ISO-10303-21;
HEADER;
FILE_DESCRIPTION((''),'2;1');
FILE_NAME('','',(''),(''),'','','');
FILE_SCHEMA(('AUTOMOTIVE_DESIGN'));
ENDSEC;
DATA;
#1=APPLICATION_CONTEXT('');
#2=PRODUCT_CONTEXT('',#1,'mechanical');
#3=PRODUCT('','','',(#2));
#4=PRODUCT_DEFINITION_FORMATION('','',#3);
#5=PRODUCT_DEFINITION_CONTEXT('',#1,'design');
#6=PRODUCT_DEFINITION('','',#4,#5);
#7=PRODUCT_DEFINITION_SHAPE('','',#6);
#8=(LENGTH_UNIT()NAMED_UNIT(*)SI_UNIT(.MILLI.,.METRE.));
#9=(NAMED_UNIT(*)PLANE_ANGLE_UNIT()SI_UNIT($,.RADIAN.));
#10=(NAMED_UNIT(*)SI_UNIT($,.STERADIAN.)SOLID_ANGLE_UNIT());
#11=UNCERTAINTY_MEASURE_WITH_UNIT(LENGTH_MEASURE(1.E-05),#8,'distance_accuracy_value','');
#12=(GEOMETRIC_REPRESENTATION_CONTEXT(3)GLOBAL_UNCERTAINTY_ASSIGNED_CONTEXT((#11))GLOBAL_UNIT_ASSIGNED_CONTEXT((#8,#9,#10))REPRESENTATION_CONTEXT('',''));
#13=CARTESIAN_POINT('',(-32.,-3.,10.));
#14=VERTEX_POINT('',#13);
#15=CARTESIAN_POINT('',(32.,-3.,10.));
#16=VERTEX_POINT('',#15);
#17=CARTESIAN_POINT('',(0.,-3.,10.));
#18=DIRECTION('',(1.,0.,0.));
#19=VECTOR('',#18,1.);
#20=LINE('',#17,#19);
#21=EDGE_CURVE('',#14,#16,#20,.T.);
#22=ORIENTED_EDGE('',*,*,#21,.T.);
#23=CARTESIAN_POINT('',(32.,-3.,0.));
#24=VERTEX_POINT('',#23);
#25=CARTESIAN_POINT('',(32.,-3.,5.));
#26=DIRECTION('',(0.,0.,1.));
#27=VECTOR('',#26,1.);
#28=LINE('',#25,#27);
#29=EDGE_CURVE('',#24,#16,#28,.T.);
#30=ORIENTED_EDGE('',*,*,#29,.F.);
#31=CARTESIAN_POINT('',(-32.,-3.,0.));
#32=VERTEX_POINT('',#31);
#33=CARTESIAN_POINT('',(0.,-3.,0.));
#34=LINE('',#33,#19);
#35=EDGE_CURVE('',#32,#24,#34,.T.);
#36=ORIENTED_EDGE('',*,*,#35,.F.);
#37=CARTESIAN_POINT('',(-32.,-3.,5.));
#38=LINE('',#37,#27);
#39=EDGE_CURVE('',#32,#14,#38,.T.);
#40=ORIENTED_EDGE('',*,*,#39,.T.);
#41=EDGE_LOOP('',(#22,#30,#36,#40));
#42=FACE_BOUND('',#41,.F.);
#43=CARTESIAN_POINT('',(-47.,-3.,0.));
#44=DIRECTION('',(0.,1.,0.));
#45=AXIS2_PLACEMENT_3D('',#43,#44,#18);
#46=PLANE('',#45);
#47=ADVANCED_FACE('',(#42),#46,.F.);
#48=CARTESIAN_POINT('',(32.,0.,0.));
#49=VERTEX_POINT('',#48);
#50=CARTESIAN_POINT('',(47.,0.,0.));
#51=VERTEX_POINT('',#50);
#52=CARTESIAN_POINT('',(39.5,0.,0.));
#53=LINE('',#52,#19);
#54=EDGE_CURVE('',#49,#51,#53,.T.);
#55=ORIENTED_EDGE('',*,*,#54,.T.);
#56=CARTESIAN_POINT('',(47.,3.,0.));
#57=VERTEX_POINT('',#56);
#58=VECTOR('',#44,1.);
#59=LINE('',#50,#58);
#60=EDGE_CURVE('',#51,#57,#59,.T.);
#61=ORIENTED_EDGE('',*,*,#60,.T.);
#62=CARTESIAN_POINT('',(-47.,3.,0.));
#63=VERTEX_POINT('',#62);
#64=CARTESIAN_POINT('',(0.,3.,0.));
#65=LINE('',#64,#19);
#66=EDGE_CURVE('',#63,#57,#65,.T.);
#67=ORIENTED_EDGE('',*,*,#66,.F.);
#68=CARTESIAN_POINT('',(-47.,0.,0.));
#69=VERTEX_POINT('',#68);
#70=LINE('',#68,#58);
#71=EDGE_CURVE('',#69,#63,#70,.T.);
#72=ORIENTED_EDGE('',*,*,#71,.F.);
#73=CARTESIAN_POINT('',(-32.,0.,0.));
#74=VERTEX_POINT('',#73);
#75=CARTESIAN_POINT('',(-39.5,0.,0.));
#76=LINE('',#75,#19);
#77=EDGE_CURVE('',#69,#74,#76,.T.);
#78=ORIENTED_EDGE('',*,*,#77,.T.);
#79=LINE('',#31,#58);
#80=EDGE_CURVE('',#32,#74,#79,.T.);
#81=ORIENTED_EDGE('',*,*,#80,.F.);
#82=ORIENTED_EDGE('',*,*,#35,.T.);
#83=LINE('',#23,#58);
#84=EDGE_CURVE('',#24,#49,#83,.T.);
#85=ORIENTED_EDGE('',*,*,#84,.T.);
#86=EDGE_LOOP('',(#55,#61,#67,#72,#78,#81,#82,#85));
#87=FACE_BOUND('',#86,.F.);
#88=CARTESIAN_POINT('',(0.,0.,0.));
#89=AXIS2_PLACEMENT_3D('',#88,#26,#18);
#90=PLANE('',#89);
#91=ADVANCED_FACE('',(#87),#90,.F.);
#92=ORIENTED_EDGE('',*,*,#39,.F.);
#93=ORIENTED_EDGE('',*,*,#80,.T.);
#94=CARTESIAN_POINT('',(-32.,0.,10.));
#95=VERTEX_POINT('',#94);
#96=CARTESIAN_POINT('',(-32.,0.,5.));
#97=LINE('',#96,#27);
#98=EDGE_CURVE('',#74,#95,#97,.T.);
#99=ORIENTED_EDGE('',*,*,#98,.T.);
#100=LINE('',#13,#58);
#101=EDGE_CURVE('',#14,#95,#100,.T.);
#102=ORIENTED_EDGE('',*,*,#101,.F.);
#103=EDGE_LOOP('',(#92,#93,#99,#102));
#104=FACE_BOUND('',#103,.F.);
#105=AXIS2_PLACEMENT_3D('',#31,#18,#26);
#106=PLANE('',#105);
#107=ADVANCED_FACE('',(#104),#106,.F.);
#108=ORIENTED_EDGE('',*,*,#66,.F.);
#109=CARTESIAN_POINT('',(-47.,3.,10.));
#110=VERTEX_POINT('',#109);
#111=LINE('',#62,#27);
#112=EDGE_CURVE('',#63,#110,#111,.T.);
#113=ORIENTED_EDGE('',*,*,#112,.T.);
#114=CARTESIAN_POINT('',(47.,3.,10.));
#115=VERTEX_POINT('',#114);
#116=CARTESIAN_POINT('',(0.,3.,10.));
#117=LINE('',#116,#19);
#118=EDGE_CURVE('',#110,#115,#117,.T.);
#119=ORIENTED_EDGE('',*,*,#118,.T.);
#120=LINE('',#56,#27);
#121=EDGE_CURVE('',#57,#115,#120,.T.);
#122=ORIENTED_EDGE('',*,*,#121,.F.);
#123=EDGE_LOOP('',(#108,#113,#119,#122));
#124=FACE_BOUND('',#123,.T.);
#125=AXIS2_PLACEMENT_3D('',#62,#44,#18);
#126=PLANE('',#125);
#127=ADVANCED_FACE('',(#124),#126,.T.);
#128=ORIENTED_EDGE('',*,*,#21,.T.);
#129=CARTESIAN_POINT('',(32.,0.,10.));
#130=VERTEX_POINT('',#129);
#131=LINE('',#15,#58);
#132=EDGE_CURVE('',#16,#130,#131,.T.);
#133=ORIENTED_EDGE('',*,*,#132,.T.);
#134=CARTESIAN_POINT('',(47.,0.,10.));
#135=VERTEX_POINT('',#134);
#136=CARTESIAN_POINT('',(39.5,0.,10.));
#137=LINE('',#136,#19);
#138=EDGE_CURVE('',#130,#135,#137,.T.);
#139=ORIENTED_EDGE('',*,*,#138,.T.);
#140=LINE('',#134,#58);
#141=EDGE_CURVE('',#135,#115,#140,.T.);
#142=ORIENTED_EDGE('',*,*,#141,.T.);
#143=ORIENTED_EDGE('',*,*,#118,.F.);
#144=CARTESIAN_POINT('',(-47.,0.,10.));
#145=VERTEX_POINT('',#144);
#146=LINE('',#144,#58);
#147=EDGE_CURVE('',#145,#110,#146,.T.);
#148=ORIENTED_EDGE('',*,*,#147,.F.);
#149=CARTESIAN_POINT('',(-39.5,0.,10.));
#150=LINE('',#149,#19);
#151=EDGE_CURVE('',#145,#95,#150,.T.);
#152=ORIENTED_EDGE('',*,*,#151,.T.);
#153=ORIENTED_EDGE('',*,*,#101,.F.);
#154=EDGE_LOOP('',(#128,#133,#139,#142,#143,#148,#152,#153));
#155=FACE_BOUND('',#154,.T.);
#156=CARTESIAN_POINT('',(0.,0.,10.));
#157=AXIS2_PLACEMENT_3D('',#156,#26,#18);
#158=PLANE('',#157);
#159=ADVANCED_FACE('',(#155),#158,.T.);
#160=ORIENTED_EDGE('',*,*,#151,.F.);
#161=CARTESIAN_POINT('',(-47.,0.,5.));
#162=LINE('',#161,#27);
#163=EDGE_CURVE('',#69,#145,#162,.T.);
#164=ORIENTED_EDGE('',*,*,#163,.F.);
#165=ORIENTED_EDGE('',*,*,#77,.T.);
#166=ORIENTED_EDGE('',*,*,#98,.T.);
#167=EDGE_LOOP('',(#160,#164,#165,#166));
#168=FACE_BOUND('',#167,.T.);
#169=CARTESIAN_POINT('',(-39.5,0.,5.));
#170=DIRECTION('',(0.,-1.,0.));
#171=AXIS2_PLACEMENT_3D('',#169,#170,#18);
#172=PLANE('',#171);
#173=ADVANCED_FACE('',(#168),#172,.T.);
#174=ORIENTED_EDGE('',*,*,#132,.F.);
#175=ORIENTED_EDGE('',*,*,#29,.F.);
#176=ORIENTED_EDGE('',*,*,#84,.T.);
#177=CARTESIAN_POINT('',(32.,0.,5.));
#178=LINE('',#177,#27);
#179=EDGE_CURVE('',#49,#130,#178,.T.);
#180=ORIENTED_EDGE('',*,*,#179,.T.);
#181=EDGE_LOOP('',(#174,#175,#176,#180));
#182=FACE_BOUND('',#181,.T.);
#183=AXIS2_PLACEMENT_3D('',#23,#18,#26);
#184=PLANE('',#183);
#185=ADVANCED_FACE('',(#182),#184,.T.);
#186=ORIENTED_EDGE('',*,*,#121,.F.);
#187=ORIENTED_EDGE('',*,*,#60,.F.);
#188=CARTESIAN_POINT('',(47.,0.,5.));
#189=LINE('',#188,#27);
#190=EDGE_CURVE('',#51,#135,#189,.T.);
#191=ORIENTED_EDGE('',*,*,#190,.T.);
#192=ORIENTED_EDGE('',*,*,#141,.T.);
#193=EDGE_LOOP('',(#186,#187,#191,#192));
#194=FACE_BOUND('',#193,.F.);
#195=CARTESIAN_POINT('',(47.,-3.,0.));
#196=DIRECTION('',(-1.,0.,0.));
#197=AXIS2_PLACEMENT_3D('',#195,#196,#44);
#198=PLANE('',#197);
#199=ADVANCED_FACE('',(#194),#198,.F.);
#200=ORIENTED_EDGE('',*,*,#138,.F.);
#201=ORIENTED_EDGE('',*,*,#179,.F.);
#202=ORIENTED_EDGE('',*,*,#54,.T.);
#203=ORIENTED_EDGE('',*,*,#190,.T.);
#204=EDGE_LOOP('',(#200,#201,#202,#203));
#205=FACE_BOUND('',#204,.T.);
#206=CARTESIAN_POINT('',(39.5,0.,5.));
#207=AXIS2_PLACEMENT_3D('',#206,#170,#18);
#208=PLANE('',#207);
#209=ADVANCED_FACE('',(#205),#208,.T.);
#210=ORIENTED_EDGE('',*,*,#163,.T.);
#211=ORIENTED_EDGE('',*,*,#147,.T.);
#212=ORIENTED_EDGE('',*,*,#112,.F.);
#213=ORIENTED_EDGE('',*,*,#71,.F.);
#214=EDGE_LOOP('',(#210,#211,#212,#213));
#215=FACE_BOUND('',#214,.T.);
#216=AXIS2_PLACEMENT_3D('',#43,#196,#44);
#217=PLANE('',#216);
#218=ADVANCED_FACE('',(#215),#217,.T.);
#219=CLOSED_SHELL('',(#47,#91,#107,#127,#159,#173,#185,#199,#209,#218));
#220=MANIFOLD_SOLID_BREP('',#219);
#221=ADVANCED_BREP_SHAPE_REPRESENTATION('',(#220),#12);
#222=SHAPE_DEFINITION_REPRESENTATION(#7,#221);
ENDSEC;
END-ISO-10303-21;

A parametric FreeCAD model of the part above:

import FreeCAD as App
import Part
import Sketcher

V = App.Vector
Q = App.Units.Quantity

doc = App.newDocument("Part")
body = doc.addObject("PartDesign::Body", "Body")

# Sketch on XY plane
sketch1 = doc.addObject("Sketcher::SketchObject", "Sketch")
body.addObject(sketch1)
sketch1.AttachmentSupport = (doc.XY_Plane, [""])
sketch1.MapMode = "FlatFace"
sketch1.addGeometry(Part.LineSegment(V(-47, 3, 0), V(-47, -3, 0)), False)
sketch1.addGeometry(Part.LineSegment(V(-47, -3, 0), V(47, -3, 0)), False)
sketch1.addGeometry(Part.LineSegment(V(47, -3, 0), V(47, 3, 0)), False)
sketch1.addGeometry(Part.LineSegment(V(47, 3, 0), V(-47, 3, 0)), False)
sketch1.addConstraint(Sketcher.Constraint("Coincident", 0, 2, 1, 1))
sketch1.addConstraint(Sketcher.Constraint("Coincident", 1, 2, 2, 1))
sketch1.addConstraint(Sketcher.Constraint("Coincident", 2, 2, 3, 1))
sketch1.addConstraint(Sketcher.Constraint("Coincident", 3, 2, 0, 1))
sketch1.addConstraint(Sketcher.Constraint("Vertical", 0))
sketch1.addConstraint(Sketcher.Constraint("Horizontal", 1))
sketch1.addConstraint(Sketcher.Constraint("Vertical", 2))
sketch1.addConstraint(Sketcher.Constraint("Horizontal", 3))
sketch1.addConstraint(Sketcher.Constraint("Symmetric", 0, 2, 2, 2, -1, 1))
sketch1.addConstraint(Sketcher.Constraint("DistanceX", 1, 1, 1, 2, Q("94 mm")))
sketch1.addConstraint(Sketcher.Constraint("DistanceY", 0, 2, 0, 1, Q("6 mm")))
pad1 = doc.addObject("PartDesign::Pad", "Pad")
body.addObject(pad1)
pad1.Profile = sketch1
pad1.Length = 10

# Sketch on XZ plane
sketch2 = doc.addObject("Sketcher::SketchObject", "Sketch001")
body.addObject(sketch2)
sketch2.AttachmentSupport = (doc.XZ_Plane, [""])
sketch2.MapMode = "FlatFace"
sketch2.AttachmentOffset = App.Placement(V(0, 0, 3), App.Rotation())
sketch2.addGeometry(Part.LineSegment(V(32, 10, 0), V(32, 0, 0)), False)
sketch2.addGeometry(Part.LineSegment(V(32, 0, 0), V(47, 0, 0)), False)
sketch2.addGeometry(Part.LineSegment(V(47, 0, 0), V(47, 10, 0)), False)
sketch2.addGeometry(Part.LineSegment(V(47, 10, 0), V(32, 10, 0)), False)
sketch2.addGeometry(Part.LineSegment(V(-47, 10, 0), V(-47, 0, 0)), False)
sketch2.addGeometry(Part.LineSegment(V(-47, 0, 0), V(-32, 0, 0)), False)
sketch2.addGeometry(Part.LineSegment(V(-32, 0, 0), V(-32, 10, 0)), False)
sketch2.addGeometry(Part.LineSegment(V(-32, 10, 0), V(-47, 10, 0)), False)
sketch2.addConstraint(Sketcher.Constraint("Coincident", 0, 2, 1, 1))
sketch2.addConstraint(Sketcher.Constraint("Coincident", 1, 2, 2, 1))
sketch2.addConstraint(Sketcher.Constraint("Coincident", 2, 2, 3, 1))
sketch2.addConstraint(Sketcher.Constraint("Coincident", 3, 2, 0, 1))
sketch2.addConstraint(Sketcher.Constraint("Coincident", 4, 2, 5, 1))
sketch2.addConstraint(Sketcher.Constraint("Coincident", 5, 2, 6, 1))
sketch2.addConstraint(Sketcher.Constraint("Coincident", 6, 2, 7, 1))
sketch2.addConstraint(Sketcher.Constraint("Coincident", 7, 2, 4, 1))
sketch2.addConstraint(Sketcher.Constraint("Vertical", 0))
sketch2.addConstraint(Sketcher.Constraint("Horizontal", 1))
sketch2.addConstraint(Sketcher.Constraint("Vertical", 2))
sketch2.addConstraint(Sketcher.Constraint("Horizontal", 3))
sketch2.addConstraint(Sketcher.Constraint("Vertical", 4))
sketch2.addConstraint(Sketcher.Constraint("Horizontal", 5))
sketch2.addConstraint(Sketcher.Constraint("Vertical", 6))
sketch2.addConstraint(Sketcher.Constraint("Horizontal", 7))
sketch2.addConstraint(Sketcher.Constraint("Symmetric", 1, 2, 4, 2, -1, 1))
sketch2.addConstraint(Sketcher.Constraint("Symmetric", 0, 2, 5, 2, -2))
sketch2.addConstraint(Sketcher.Constraint("Horizontal", 3, 2, 6, 2))
sketch2.addConstraint(Sketcher.Constraint("DistanceX", 1, 1, 1, 2, Q("15 mm")))
sketch2.addConstraint(Sketcher.Constraint("DistanceY", 0, 2, 0, 1, Q("10 mm")))
sketch2.addConstraint(Sketcher.Constraint("DistanceX", -1, 1, 0, 2, Q("32 mm")))
pocket1 = doc.addObject("PartDesign::Pocket", "Pocket")
body.addObject(pocket1)
pocket1.Profile = sketch2
pocket1.Length = 3

doc.recompute()
